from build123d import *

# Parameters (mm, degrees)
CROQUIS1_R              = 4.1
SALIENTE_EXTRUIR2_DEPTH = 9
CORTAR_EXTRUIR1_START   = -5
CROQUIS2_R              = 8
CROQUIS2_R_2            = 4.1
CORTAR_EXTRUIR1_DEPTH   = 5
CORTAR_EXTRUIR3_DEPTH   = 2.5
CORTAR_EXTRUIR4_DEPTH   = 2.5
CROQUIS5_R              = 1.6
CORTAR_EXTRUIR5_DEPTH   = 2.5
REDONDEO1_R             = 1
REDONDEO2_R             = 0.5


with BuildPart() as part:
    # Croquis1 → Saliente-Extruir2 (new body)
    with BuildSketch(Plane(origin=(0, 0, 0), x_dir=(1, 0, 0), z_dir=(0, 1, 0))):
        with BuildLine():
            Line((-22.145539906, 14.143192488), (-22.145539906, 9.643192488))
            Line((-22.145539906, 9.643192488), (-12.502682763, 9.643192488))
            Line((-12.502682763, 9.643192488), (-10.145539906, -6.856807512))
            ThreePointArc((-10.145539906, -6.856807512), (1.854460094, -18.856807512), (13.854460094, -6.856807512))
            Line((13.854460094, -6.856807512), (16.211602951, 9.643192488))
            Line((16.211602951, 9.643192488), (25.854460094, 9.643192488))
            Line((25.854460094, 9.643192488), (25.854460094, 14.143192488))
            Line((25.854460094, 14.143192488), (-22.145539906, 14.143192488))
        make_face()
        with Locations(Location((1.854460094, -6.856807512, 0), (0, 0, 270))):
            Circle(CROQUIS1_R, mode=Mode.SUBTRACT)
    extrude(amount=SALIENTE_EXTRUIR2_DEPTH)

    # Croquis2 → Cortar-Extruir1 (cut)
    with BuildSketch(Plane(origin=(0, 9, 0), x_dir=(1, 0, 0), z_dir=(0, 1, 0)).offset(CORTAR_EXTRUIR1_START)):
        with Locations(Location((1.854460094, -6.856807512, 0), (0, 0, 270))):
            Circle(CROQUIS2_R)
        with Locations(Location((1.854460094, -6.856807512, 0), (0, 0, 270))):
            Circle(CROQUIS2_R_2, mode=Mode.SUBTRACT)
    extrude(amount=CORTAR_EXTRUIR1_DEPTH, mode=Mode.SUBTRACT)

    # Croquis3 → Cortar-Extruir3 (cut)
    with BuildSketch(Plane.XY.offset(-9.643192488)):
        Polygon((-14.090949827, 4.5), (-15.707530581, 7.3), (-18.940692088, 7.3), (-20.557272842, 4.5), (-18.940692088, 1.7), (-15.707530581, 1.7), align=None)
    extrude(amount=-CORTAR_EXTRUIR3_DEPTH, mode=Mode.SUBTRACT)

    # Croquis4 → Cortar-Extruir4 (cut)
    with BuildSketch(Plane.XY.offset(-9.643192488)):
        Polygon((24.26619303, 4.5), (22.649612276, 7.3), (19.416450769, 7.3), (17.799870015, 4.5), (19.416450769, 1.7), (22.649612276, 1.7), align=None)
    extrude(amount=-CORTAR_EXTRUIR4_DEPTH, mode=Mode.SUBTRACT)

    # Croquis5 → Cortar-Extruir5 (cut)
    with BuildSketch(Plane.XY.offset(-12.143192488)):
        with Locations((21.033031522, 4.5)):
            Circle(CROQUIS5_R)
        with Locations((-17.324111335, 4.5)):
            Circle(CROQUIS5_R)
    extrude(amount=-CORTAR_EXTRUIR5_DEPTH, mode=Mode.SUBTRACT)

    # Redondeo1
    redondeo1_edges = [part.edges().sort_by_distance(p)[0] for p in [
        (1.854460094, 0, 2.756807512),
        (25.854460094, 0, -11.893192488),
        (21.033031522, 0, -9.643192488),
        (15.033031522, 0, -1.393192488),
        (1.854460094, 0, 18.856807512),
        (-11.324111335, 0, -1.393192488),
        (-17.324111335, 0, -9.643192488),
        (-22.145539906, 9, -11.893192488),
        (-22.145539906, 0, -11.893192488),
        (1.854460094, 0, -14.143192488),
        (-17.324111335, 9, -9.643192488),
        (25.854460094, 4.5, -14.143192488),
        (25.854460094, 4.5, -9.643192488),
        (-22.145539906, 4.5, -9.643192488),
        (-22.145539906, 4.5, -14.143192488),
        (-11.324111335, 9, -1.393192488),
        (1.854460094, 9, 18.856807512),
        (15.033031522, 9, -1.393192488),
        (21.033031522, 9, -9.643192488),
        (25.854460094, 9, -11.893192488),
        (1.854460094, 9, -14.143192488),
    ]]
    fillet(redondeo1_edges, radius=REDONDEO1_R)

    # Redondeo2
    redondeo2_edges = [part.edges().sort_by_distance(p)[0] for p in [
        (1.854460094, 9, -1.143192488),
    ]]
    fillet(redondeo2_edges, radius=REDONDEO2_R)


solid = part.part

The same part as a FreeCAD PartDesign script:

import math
import FreeCAD as App
import Part
import Sketcher

V = App.Vector
Q = App.Units.Quantity


def edges_at(feature, points):
    """Names of the edges that pass closest to the given points."""
    edges = feature.Shape.Edges
    near = lambda p: min(range(len(edges)), key=lambda i: edges[i].distToShape(Part.Vertex(*p))[0])
    return sorted({f"Edge{near(p) + 1}" for p in points})

doc = App.newDocument("Part")
body = doc.addObject("PartDesign::Body", "Body")

# Sketch on XZ plane
sketch1 = body.newObject("Sketcher::SketchObject", "Sketch")
sketch1.AttachmentSupport = (doc.getObject("XZ_Plane"), [""])
sketch1.MapMode = "FlatFace"
sketch1.addGeometry([
    Part.LineSegment(V(-22.1, -14.1, 0), V(-22.1, -9.6, 0)),  # 0
    Part.LineSegment(V(-22.1, -9.6, 0), V(-12.5, -9.6, 0)),  # 1
    Part.LineSegment(V(-12.5, -9.6, 0), V(-10.1, 6.9, 0)),  # 2
    Part.ArcOfCircle(Part.Circle(V(1.9, 6.9, 0), V(0, 0, 1), 12), math.radians(0), math.radians(180)),  # 3
    Part.LineSegment(V(13.9, 6.9, 0), V(16.2, -9.6, 0)),  # 4
    Part.LineSegment(V(16.2, -9.6, 0), V(25.9, -9.6, 0)),  # 5
    Part.LineSegment(V(25.9, -9.6, 0), V(25.9, -14.1, 0)),  # 6
    Part.LineSegment(V(25.9, -14.1, 0), V(-22.1, -14.1, 0)),  # 7
    Part.Circle(V(1.9, 6.9, 0), V(0, 0, 1), 4.1),  # 8
], False)
sketch1.addConstraint([
    Sketcher.Constraint("Coincident", 0, 2, 1, 1),
    Sketcher.Constraint("Coincident", 1, 2, 2, 1),
    Sketcher.Constraint("Coincident", 2, 2, 3, 2),
    Sketcher.Constraint("Coincident", 3, 1, 4, 1),
    Sketcher.Constraint("Coincident", 4, 2, 5, 1),
    Sketcher.Constraint("Coincident", 5, 2, 6, 1),
    Sketcher.Constraint("Coincident", 6, 2, 7, 1),
    Sketcher.Constraint("Coincident", 7, 2, 0, 1),
    Sketcher.Constraint("Vertical", 0),
    Sketcher.Constraint("Horizontal", 1),
    Sketcher.Constraint("Horizontal", 5),
    Sketcher.Constraint("Vertical", 6),
    Sketcher.Constraint("Horizontal", 7),
    Sketcher.Constraint("Coincident", 8, 3, 3, 3),
    Sketcher.Constraint("Horizontal", 8, 3, 2, 2),
    Sketcher.Constraint("Horizontal", 2, 2, 3, 1),
    Sketcher.Constraint("Horizontal", 1, 2, 4, 2),
    Sketcher.Constraint("Equal", 1, 5),
    Sketcher.Constraint("Equal", 2, 4),
    Sketcher.Constraint("Radius", 3, Q("12 mm")),
    Sketcher.Constraint("Diameter", 8, Q("8.2 mm")),
    Sketcher.Constraint("DistanceX", 7, 2, 7, 1, Q("48 mm")),
    Sketcher.Constraint("DistanceY", 0, 1, 0, 2, Q("4.5 mm")),
    Sketcher.Constraint("DistanceY", 6, 2, 3, 1, Q("21 mm")),
    Sketcher.Constraint("DistanceX", 1, 1, 1, 2, Q("9.642857 mm")),
    Sketcher.Constraint("DistanceX", -1, 1, 3, 3, Q("1.85446 mm")),
    Sketcher.Constraint("DistanceY", -1, 1, 3, 3, Q("6.856808 mm")),
])
pad1 = body.newObject("PartDesign::Pad", "Pad")
pad1.Profile = sketch1
pad1.Length = 9
pad1.Reversed = True

# Sketch on XZ plane
sketch2 = body.newObject("Sketcher::SketchObject", "Sketch001")
sketch2.AttachmentSupport = (doc.getObject("XZ_Plane"), [""])
sketch2.MapMode = "FlatFace"
sketch2.AttachmentOffset = App.Placement(V(0, 0, -4), App.Rotation())
sketch2.addGeometry([
    Part.Circle(V(1.9, 6.9, 0), V(0, 0, 1), 8),
    Part.Circle(V(1.9, 6.9, 0), V(0, 0, 1), 4.1),
], False)
sketch2.addConstraint([
    Sketcher.Constraint("Coincident", 1, 3, 0, 3),
    Sketcher.Constraint("Diameter", 0, Q("16 mm")),
    Sketcher.Constraint("Diameter", 1, Q("8.2 mm")),
    Sketcher.Constraint("DistanceX", -1, 1, 0, 3, Q("1.85446 mm")),
    Sketcher.Constraint("DistanceY", -1, 1, 0, 3, Q("6.856808 mm")),
])
pocket1 = body.newObject("PartDesign::Pocket", "Pocket")
pocket1.Profile = sketch2
pocket1.Length = 5

# Sketch on XY plane
sketch3 = body.newObject("Sketcher::SketchObject", "Sketch002")
sketch3.AttachmentSupport = (doc.getObject("XY_Plane"), [""])
sketch3.MapMode = "FlatFace"
sketch3.AttachmentOffset = App.Placement(V(0, 0, -9.643192), App.Rotation())
sketch3.addGeometry([
    Part.LineSegment(V(-14.1, 4.5, 0), V(-15.7, 7.3, 0)),  # 0
    Part.LineSegment(V(-15.7, 7.3, 0), V(-18.9, 7.3, 0)),  # 1
    Part.LineSegment(V(-18.9, 7.3, 0), V(-20.6, 4.5, 0)),  # 2
    Part.LineSegment(V(-20.6, 4.5, 0), V(-18.9, 1.7, 0)),  # 3
    Part.LineSegment(V(-18.9, 1.7, 0), V(-15.7, 1.7, 0)),  # 4
    Part.LineSegment(V(-15.7, 1.7, 0), V(-14.1, 4.5, 0)),  # 5
], False)
sketch3.addConstraint([
    Sketcher.Constraint("Coincident", 0, 2, 1, 1),
    Sketcher.Constraint("Coincident", 1, 2, 2, 1),
    Sketcher.Constraint("Coincident", 2, 2, 3, 1),
    Sketcher.Constraint("Coincident", 3, 2, 4, 1),
    Sketcher.Constraint("Coincident", 4, 2, 5, 1),
    Sketcher.Constraint("Coincident", 5, 2, 0, 1),
    Sketcher.Constraint("Horizontal", 1),
    Sketcher.Constraint("Horizontal", 4),
    Sketcher.Constraint("Parallel", 0, 3),
    Sketcher.Constraint("Parallel", 2, 5),
    Sketcher.Constraint("Horizontal", 2, 2, 5, 2),
    Sketcher.Constraint("Vertical", 1, 2, 3, 2),
    Sketcher.Constraint("Vertical", 0, 2, 4, 2),
    Sketcher.Constraint("Angle", 0, Q("120 deg")),
    Sketcher.Constraint("DistanceY", -1, 1, 0, 2, Q("7.3 mm")),
    Sketcher.Constraint("DistanceY", -1, 1, 2, 2, Q("4.5 mm")),
    Sketcher.Constraint("DistanceX", 1, 2, 1, 1, Q("3.233162 mm")),
    Sketcher.Constraint("DistanceX", 0, 2, -1, 1, Q("15.707531 mm")),
])
pocket2 = body.newObject("PartDesign::Pocket", "Pocket001")
pocket2.Profile = sketch3
pocket2.Length = 2.5

# Sketch on XY plane
sketch4 = body.newObject("Sketcher::SketchObject", "Sketch003")
sketch4.AttachmentSupport = (doc.getObject("XY_Plane"), [""])
sketch4.MapMode = "FlatFace"
sketch4.AttachmentOffset = App.Placement(V(0, 0, -9.643192), App.Rotation())
sketch4.addGeometry([
    Part.LineSegment(V(24.3, 4.5, 0), V(22.6, 7.3, 0)),  # 0
    Part.LineSegment(V(22.6, 7.3, 0), V(19.4, 7.3, 0)),  # 1
    Part.LineSegment(V(19.4, 7.3, 0), V(17.8, 4.5, 0)),  # 2
    Part.LineSegment(V(17.8, 4.5, 0), V(19.4, 1.7, 0)),  # 3
    Part.LineSegment(V(19.4, 1.7, 0), V(22.6, 1.7, 0)),  # 4
    Part.LineSegment(V(22.6, 1.7, 0), V(24.3, 4.5, 0)),  # 5
], False)
sketch4.addConstraint([
    Sketcher.Constraint("Coincident", 0, 2, 1, 1),
    Sketcher.Constraint("Coincident", 1, 2, 2, 1),
    Sketcher.Constraint("Coincident", 2, 2, 3, 1),
    Sketcher.Constraint("Coincident", 3, 2, 4, 1),
    Sketcher.Constraint("Coincident", 4, 2, 5, 1),
    Sketcher.Constraint("Coincident", 5, 2, 0, 1),
    Sketcher.Constraint("Horizontal", 1),
    Sketcher.Constraint("Horizontal", 4),
    Sketcher.Constraint("Parallel", 0, 3),
    Sketcher.Constraint("Parallel", 2, 5),
    Sketcher.Constraint("Horizontal", 2, 2, 5, 2),
    Sketcher.Constraint("Vertical", 1, 2, 3, 2),
    Sketcher.Constraint("Vertical", 0, 2, 4, 2),
    Sketcher.Constraint("Angle", 0, Q("120 deg")),
    Sketcher.Constraint("DistanceY", -1, 1, 0, 2, Q("7.3 mm")),
    Sketcher.Constraint("DistanceY", -1, 1, 2, 2, Q("4.5 mm")),
    Sketcher.Constraint("DistanceX", 1, 2, 1, 1, Q("3.233162 mm")),
    Sketcher.Constraint("DistanceX", -1, 1, 1, 2, Q("19.416451 mm")),
])
pocket3 = body.newObject("PartDesign::Pocket", "Pocket002")
pocket3.Profile = sketch4
pocket3.Length = 2.5

# Sketch on XY plane
sketch5 = body.newObject("Sketcher::SketchObject", "Sketch004")
sketch5.AttachmentSupport = (doc.getObject("XY_Plane"), [""])
sketch5.MapMode = "FlatFace"
sketch5.AttachmentOffset = App.Placement(V(0, 0, -12.143192), App.Rotation())
sketch5.addGeometry([
    Part.Circle(V(21, 4.5, 0), V(0, 0, 1), 1.6),
    Part.Circle(V(-17.3, 4.5, 0), V(0, 0, 1), 1.6),
], False)
sketch5.addConstraint([
    Sketcher.Constraint("Equal", 0, 1),
    Sketcher.Constraint("Horizontal", 0, 3, 1, 3),
    Sketcher.Constraint("Diameter", 0, Q("3.2 mm")),
    Sketcher.Constraint("DistanceY", -1, 1, 0, 3, Q("4.5 mm")),
    Sketcher.Constraint("DistanceX", -1, 1, 0, 3, Q("21.033032 mm")),
    Sketcher.Constraint("DistanceX", 1, 3, -1, 1, Q("17.324111 mm")),
])
pocket4 = body.newObject("PartDesign::Pocket", "Pocket003")
pocket4.Profile = sketch5
pocket4.Length = 2.5
doc.recompute()

fillet = body.newObject("PartDesign::Fillet", "Fillet")
fillet.Base = (pocket4, edges_at(pocket4, [
    (1.854, 0, 2.757),
    (25.854, 0, -11.893),
    (21.033, 0, -9.643),
    (15.033, 0, -1.393),
    (1.854, 0, 18.857),
    (-11.324, 0, -1.393),
    (-17.324, 0, -9.643),
    (-22.146, 9, -11.893),
    (-22.146, 0, -11.893),
    (1.854, 0, -14.143),
    (-17.324, 9, -9.643),
    (25.854, 4.5, -14.143),
    (25.854, 4.5, -9.643),
    (-22.146, 4.5, -9.643),
    (-22.146, 4.5, -14.143),
    (-11.324, 9, -1.393),
    (1.854, 9, 18.857),
    (15.033, 9, -1.393),
    (21.033, 9, -9.643),
    (25.854, 9, -11.893),
    (1.854, 9, -14.143),
]))
fillet.Radius = 1
doc.recompute()

fillet2 = body.newObject("PartDesign::Fillet", "Fillet001")
fillet2.Base = (fillet, edges_at(fillet, [(1.854, 9, -1.143)]))
fillet2.Radius = 0.5

doc.recompute()
